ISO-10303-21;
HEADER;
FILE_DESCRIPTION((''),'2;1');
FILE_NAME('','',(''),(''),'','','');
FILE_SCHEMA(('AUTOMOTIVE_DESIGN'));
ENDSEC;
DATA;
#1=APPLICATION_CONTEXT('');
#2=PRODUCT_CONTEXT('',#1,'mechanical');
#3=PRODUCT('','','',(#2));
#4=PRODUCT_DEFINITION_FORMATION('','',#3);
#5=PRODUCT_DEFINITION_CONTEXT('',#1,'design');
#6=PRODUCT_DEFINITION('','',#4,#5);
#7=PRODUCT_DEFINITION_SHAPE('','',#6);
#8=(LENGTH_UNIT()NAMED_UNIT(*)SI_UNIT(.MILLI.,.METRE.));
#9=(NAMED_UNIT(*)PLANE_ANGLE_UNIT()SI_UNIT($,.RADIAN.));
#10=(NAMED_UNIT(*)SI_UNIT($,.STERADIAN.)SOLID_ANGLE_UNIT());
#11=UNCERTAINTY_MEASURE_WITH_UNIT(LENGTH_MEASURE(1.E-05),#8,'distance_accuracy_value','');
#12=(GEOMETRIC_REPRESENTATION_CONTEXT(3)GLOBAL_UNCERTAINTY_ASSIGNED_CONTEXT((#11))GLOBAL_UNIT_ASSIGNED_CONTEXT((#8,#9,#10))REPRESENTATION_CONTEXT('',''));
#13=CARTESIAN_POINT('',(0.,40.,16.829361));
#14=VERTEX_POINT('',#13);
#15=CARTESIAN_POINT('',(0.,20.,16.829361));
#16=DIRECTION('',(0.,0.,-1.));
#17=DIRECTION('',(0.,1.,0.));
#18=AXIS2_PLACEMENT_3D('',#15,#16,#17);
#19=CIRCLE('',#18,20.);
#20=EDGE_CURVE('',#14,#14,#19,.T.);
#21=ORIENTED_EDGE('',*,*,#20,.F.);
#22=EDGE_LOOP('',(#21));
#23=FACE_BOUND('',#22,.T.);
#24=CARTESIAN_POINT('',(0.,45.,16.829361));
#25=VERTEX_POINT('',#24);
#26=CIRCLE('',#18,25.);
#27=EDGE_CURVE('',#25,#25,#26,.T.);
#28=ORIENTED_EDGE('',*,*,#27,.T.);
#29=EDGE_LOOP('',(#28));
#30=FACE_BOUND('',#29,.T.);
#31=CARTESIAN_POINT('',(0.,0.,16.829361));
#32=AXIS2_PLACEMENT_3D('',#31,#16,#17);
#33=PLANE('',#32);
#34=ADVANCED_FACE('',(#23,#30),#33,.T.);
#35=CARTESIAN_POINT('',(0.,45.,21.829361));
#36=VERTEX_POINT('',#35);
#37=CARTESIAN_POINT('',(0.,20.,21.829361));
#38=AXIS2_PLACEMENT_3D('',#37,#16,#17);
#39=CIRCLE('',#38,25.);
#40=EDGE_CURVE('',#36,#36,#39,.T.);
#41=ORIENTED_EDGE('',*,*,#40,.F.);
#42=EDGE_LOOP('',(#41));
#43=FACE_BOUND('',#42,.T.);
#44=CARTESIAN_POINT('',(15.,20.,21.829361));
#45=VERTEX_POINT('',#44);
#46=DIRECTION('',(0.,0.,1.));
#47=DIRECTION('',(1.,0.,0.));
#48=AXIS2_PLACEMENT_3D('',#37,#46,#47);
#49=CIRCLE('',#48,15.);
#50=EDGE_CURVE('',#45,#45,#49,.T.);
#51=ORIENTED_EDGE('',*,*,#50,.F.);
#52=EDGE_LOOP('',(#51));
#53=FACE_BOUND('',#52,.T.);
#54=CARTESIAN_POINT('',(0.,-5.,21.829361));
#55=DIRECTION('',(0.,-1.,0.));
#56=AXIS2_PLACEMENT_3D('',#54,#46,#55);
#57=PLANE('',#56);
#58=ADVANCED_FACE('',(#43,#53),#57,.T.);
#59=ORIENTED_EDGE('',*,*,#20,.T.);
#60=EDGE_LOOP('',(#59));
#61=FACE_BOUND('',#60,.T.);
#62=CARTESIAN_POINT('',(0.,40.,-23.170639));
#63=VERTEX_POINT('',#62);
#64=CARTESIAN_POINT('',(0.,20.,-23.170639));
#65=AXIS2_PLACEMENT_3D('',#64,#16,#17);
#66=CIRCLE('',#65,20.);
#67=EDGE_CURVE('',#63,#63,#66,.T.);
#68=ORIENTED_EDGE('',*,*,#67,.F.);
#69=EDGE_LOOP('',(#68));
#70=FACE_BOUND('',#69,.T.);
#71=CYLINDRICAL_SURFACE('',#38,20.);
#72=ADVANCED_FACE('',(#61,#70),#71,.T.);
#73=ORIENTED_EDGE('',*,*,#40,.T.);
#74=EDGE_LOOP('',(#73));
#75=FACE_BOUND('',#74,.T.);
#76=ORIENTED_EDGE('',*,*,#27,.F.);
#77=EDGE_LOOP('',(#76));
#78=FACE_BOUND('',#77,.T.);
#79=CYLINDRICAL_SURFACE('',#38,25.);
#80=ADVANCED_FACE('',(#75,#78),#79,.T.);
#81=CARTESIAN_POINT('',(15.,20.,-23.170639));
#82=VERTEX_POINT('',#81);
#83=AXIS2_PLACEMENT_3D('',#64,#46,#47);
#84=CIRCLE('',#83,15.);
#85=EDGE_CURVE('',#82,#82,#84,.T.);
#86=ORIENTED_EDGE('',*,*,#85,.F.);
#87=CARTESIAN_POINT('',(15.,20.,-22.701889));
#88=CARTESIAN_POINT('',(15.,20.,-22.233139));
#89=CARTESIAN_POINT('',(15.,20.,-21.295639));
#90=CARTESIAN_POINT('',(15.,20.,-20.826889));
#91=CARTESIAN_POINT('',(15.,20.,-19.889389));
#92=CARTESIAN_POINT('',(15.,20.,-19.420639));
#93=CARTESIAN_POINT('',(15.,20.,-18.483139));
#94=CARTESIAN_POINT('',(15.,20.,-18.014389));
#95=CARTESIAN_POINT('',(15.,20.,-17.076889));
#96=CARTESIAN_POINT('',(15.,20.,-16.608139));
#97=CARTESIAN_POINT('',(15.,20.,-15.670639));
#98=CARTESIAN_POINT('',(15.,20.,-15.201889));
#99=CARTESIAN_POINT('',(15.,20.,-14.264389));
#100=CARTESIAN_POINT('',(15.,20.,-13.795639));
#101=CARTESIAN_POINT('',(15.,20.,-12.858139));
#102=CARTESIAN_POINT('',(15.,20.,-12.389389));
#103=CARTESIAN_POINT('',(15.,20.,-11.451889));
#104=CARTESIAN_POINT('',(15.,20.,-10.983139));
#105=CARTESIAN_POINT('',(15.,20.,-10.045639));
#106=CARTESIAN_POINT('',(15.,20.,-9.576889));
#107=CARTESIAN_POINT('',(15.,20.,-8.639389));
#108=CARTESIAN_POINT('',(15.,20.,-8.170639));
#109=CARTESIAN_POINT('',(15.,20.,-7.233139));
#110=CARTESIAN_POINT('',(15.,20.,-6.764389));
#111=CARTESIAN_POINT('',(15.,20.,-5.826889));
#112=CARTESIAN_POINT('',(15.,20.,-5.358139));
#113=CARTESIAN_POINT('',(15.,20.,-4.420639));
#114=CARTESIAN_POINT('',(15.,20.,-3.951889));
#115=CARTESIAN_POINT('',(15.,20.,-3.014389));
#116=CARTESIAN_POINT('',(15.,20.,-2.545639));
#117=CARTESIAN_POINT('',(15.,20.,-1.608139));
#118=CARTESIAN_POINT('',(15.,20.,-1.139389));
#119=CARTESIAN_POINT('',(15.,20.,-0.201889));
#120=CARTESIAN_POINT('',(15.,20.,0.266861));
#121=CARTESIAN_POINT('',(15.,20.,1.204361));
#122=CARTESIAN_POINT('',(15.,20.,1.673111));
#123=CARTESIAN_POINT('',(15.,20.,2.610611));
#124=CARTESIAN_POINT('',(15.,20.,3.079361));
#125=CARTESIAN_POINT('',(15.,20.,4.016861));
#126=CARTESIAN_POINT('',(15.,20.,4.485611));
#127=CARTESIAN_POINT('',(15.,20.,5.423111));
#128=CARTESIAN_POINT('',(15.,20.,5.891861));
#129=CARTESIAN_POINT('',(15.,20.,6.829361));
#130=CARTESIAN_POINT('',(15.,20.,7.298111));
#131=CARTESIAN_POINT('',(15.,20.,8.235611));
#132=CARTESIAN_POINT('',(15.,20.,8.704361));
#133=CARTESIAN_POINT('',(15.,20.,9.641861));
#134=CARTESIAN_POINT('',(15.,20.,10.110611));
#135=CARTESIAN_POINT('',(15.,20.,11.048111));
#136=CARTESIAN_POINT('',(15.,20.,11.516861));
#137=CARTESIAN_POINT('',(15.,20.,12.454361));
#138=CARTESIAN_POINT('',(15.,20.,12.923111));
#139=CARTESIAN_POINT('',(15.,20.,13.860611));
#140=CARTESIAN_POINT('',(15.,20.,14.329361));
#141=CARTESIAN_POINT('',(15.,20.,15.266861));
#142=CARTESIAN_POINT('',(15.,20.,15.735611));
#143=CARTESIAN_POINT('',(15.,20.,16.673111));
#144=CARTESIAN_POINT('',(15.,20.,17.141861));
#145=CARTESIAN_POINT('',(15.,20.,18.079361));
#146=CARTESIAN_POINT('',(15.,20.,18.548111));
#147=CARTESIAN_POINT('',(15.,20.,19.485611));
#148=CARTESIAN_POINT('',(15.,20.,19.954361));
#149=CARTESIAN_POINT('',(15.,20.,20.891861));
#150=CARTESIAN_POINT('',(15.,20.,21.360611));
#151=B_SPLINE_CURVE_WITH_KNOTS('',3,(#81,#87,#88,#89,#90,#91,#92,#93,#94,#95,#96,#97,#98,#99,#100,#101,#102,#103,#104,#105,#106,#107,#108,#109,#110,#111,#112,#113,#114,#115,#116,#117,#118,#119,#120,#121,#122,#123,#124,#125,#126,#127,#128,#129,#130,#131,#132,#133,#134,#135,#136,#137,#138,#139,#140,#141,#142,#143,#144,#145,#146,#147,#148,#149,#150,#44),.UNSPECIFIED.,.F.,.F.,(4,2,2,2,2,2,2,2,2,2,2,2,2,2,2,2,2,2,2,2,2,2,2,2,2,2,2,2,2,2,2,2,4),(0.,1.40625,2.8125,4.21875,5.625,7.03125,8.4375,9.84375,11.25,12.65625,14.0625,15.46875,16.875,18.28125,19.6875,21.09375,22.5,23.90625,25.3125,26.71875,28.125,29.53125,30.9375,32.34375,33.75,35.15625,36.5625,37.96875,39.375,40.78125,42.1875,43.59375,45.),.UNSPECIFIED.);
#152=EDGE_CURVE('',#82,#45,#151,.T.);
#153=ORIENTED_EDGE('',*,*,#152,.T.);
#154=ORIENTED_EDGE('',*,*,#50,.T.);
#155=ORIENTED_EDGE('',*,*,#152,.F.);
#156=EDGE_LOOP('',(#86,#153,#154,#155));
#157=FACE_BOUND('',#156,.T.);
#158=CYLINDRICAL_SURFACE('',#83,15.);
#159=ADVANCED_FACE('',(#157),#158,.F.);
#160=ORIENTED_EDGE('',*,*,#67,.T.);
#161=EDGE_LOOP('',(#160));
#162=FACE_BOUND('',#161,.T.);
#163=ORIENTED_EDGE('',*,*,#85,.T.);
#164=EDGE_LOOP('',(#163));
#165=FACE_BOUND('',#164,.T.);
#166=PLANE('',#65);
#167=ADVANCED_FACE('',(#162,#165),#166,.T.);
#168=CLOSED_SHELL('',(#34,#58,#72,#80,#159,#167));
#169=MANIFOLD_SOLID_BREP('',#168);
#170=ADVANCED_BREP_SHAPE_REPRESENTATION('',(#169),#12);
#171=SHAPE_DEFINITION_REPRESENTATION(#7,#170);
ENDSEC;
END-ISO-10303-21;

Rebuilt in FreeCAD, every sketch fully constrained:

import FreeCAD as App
import Part
import Sketcher

V = App.Vector
Q = App.Units.Quantity


def add_polygon(sketch, points):
    """Adds a closed chain of lines whose ends are joined by coincident constraints."""
    first, n = sketch.GeometryCount, len(points)
    for a, b in zip(points, points[1:] + points[:1]):
        sketch.addGeometry(Part.LineSegment(App.Vector(*a, 0), App.Vector(*b, 0)), False)
    for i in range(n):
        sketch.addConstraint(Sketcher.Constraint("Coincident", first + i, 2, first + (i + 1) % n, 1))

doc = App.newDocument("Part")
params = doc.addObject("Spreadsheet::Sheet", "Params")
for row, (alias, value) in enumerate([
    ("sketch1_width", "20 mm"),
    ("sketch1_width2", "25 mm"),
    ("sketch1_height", "40 mm"),
    ("revolution_angle", "360 deg"),
    ("sketch2_diameter", "30 mm"),
], start=1):
    params.set(f"A{row}", alias)
    params.set(f"B{row}", "=" + value)
    params.setAlias(f"B{row}", alias)

body = doc.addObject("PartDesign::Body", "Body")

# Sketch on YZ plane
sketch1 = body.newObject("Sketcher::SketchObject", "Sketch")
sketch1.AttachmentSupport = (doc.getObject("YZ_Plane"), [""])
sketch1.MapMode = "FlatFace"
add_polygon(sketch1, [(0, 16.829361), (0, -23.170639), (20, -23.170639), (20, 21.829361), (-5, 21.829361), (-5, 16.829361)])  # lines 0-5
sketch1.addGeometry(Part.LineSegment(V(20, 21.829361, 0), V(20, -23.170639, 0)), True)  # axis
sketch1.addConstraint(Sketcher.Constraint("Vertical", 0))
sketch1.addConstraint(Sketcher.Constraint("Horizontal", 1))
sketch1.addConstraint(Sketcher.Constraint("Vertical", 2))
sketch1.addConstraint(Sketcher.Constraint("Horizontal", 3))
sketch1.addConstraint(Sketcher.Constraint("Vertical", 4))
sketch1.addConstraint(Sketcher.Constraint("Horizontal", 5))
sketch1.addConstraint(Sketcher.Constraint("Vertical", 6))
sketch1.addConstraint(Sketcher.Constraint("Coincident", 6, 1, 2, 2))
sketch1.addConstraint(Sketcher.Constraint("PointOnObject", 0, 2, -2))
sketch1.addConstraint(Sketcher.Constraint("Horizontal", 0, 2, 6, 2))
sketch1.addConstraint(Sketcher.Constraint("Equal", 5, 4))
sketch1.addConstraint(Sketcher.Constraint("DistanceX", 1, 1, 1, 2, Q("20 mm")))
sketch1.addConstraint(Sketcher.Constraint("DistanceX", 3, 2, 3, 1, Q("25 mm")))
sketch1.addConstraint(Sketcher.Constraint("DistanceY", 0, 2, 0, 1, Q("40 mm")))
sketch1.addConstraint(Sketcher.Constraint("DistanceY", 0, 2, -1, 1, Q("23.170639 mm")))
sketch1.setExpression("Constraints[17]", "Params.sketch1_width")
sketch1.setExpression("Constraints[18]", "Params.sketch1_width2")
sketch1.setExpression("Constraints[19]", "Params.sketch1_height")
revolution = body.newObject("PartDesign::Revolution", "Revolution")
revolution.Profile = sketch1
revolution.ReferenceAxis = (sketch1, ["Axis0"])
revolution.setExpression("Angle", "Params.revolution_angle")

# Sketch on XY plane
sketch2 = body.newObject("Sketcher::SketchObject", "Sketch001")
sketch2.AttachmentSupport = (doc.getObject("XY_Plane"), [""])
sketch2.MapMode = "FlatFace"
sketch2.AttachmentOffset = App.Placement(V(0, 0, 21.829361), App.Rotation())
sketch2.addGeometry(Part.Circle(V(0, 20, 0), V(0, 0, 1), 15), False)
sketch2.addConstraint(Sketcher.Constraint("PointOnObject", 0, 3, -2))
sketch2.addConstraint(Sketcher.Constraint("Diameter", 0, Q("30 mm")))
sketch2.addConstraint(Sketcher.Constraint("DistanceY", -1, 1, 0, 3, Q("20 mm")))
sketch2.setExpression("Constraints[1]", "Params.sketch2_diameter")
pocket1 = body.newObject("PartDesign::Pocket", "Pocket")
pocket1.Profile = sketch2
pocket1.Type = "ThroughAll"

doc.recompute()
